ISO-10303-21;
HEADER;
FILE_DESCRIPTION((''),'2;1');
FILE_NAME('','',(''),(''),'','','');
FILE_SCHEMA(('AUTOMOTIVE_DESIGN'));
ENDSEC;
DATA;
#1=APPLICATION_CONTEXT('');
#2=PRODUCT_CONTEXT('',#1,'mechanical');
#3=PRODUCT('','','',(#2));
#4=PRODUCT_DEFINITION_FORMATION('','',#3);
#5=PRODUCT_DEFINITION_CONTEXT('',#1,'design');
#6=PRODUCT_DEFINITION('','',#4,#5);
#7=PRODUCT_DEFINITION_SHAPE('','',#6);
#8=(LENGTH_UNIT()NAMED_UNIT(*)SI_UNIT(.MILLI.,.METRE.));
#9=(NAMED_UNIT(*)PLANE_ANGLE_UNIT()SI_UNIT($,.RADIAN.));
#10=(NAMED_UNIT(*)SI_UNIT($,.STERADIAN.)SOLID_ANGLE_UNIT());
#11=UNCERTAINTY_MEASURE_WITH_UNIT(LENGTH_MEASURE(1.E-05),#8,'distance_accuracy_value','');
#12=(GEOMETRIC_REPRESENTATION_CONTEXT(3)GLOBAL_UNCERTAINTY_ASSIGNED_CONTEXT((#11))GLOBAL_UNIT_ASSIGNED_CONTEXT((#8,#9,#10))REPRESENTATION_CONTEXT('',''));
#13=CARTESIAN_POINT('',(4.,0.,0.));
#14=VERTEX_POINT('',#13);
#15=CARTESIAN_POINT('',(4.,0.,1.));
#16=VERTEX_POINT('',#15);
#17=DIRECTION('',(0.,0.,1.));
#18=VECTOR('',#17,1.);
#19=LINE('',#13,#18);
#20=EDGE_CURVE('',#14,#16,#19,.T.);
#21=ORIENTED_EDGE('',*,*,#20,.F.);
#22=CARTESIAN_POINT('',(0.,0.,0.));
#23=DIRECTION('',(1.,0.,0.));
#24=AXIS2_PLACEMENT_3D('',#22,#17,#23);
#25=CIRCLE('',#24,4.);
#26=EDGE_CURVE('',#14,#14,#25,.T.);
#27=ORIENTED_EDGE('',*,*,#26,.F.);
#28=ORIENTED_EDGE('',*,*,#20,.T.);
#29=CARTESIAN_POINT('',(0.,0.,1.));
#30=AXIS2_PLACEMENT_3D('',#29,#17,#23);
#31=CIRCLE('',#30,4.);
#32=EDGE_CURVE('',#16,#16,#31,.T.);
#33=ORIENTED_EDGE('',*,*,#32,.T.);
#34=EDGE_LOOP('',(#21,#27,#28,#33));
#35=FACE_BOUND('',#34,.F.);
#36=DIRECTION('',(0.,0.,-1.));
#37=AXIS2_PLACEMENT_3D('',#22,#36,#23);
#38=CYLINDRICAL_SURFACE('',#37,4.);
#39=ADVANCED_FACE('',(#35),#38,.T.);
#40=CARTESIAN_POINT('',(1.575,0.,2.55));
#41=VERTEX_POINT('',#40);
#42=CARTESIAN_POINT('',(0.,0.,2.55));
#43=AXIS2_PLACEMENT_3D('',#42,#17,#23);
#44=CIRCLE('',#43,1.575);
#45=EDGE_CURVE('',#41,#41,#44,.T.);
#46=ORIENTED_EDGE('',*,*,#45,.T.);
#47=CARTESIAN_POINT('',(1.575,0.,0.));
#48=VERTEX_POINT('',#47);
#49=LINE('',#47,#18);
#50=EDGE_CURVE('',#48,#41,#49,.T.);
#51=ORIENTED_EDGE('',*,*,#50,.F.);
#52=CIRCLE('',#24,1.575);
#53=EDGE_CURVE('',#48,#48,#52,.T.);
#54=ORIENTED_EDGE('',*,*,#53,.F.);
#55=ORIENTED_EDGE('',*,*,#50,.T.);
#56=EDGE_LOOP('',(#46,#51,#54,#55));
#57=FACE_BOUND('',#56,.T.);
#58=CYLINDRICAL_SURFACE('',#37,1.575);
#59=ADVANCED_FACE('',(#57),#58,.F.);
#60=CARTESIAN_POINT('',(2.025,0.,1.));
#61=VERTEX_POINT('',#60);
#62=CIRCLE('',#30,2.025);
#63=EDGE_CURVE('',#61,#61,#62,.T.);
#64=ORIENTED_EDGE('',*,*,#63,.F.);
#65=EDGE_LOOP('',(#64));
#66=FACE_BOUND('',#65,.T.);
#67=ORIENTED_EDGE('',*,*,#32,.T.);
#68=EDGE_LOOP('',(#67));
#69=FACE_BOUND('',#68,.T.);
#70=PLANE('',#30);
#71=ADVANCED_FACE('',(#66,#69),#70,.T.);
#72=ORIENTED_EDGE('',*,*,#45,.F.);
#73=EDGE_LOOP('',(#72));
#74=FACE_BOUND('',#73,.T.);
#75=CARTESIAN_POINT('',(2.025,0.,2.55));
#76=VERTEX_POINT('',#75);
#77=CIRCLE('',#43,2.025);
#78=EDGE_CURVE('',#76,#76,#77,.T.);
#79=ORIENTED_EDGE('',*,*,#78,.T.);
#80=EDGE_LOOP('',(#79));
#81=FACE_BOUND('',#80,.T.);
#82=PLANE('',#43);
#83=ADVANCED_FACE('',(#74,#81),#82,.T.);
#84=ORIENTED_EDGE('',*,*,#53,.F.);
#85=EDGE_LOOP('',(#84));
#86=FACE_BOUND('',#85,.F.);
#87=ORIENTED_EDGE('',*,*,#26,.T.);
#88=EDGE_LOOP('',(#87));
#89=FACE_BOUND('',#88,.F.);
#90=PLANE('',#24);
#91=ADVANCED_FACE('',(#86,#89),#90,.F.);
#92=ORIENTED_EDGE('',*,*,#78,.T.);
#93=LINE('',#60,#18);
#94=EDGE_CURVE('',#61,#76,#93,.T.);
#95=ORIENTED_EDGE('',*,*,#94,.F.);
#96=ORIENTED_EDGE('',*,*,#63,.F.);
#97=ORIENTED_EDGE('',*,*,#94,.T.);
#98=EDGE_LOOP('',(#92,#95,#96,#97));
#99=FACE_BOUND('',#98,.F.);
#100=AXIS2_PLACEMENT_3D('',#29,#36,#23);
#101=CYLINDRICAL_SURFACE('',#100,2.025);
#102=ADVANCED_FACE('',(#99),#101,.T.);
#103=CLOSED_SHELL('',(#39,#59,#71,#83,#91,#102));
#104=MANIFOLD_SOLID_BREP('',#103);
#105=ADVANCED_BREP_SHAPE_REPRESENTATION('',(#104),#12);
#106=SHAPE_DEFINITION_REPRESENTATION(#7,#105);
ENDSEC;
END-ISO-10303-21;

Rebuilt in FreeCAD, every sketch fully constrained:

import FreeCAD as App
import Part
import Sketcher

V = App.Vector

doc = App.newDocument("Part")
body = doc.addObject("PartDesign::Body", "Body")

# Sketch on XY plane
sketch1 = body.newObject("Sketcher::SketchObject", "Sketch")
sketch1.AttachmentSupport = (doc.getObject("XY_Plane"), [""])
sketch1.MapMode = "FlatFace"
sketch1.addGeometry([
    Part.Circle(V(0, 0, 0), V(0, 0, 1), 4),
    Part.Circle(V(0, 0, 0), V(0, 0, 1), 1.575),
], False)
sketch1.addConstraint([
    Sketcher.Constraint("Coincident", 0, 3, -1, 1),
    Sketcher.Constraint("Coincident", 1, 3, -1, 1),
    Sketcher.Constraint("Diameter", 0, 8.0),
    Sketcher.Constraint("Diameter", 1, 3.15),
])
pad1 = body.newObject("PartDesign::Pad", "Pad")
pad1.Profile = sketch1
pad1.Length = 1

# Sketch on XY plane
sketch2 = body.newObject("Sketcher::SketchObject", "Sketch001")
sketch2.AttachmentSupport = (doc.getObject("XY_Plane"), [""])
sketch2.MapMode = "FlatFace"
sketch2.AttachmentOffset = App.Placement(V(0, 0, 1), App.Rotation())
sketch2.addGeometry([
    Part.Circle(V(0, 0, 0), V(0, 0, 1), 2.025),
    Part.Circle(V(0, 0, 0), V(0, 0, 1), 1.575),
], False)
sketch2.addConstraint([
    Sketcher.Constraint("Coincident", 0, 3, -1, 1),
    Sketcher.Constraint("Coincident", 1, 3, -1, 1),
    Sketcher.Constraint("Diameter", 0, 4.05),
    Sketcher.Constraint("Diameter", 1, 3.15),
])
pad2 = body.newObject("PartDesign::Pad", "Pad001")
pad2.Profile = sketch2
pad2.Length = 1.55

doc.recompute()
